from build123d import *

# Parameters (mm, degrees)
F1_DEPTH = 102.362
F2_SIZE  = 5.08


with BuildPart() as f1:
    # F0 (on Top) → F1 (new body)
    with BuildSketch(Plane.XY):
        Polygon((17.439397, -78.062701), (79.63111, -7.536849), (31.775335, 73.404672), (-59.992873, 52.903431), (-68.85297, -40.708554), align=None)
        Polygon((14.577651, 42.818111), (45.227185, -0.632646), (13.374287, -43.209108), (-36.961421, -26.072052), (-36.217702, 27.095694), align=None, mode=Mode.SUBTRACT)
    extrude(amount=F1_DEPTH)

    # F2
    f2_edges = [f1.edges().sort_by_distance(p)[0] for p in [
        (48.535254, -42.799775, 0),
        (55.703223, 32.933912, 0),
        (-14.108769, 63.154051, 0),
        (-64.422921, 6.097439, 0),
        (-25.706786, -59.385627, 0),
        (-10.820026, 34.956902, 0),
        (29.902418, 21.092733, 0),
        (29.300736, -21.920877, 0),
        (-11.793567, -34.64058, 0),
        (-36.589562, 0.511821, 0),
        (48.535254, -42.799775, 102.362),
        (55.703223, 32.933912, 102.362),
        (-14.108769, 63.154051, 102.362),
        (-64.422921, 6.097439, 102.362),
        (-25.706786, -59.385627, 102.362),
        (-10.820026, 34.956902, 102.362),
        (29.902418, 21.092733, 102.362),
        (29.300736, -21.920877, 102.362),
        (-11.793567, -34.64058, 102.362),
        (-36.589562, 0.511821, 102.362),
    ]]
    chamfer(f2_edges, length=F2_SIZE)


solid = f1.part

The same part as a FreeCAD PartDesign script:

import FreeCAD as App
import Part
import Sketcher

V = App.Vector
Q = App.Units.Quantity


def edges_at(feature, points):
    """Names of the edges that pass closest to the given points."""
    edges = feature.Shape.Edges
    near = lambda p: min(range(len(edges)), key=lambda i: edges[i].distToShape(Part.Vertex(*p))[0])
    return sorted({f"Edge{near(p) + 1}" for p in points})

doc = App.newDocument("Part")
body = doc.addObject("PartDesign::Body", "Body")

sketch1 = body.newObject("Sketcher::SketchObject", "Sketch")
sketch1.AttachmentSupport = (doc.getObject("XY_Plane"), [""])
sketch1.MapMode = "FlatFace"
sketch1.addGeometry([
    Part.LineSegment(V(17.439397, -78.062701, 0), V(79.63111, -7.536849, 0)),
    Part.LineSegment(V(79.63111, -7.536849, 0), V(31.775335, 73.404672, 0)),
    Part.LineSegment(V(31.775335, 73.404672, 0), V(-59.992873, 52.903431, 0)),
    Part.LineSegment(V(-59.992873, 52.903431, 0), V(-68.85297, -40.708554, 0)),
    Part.LineSegment(V(-68.85297, -40.708554, 0), V(17.439397, -78.062701, 0)),
    Part.LineSegment(V(-36.217702, 27.095694, 0), V(14.577651, 42.818111, 0)),
    Part.LineSegment(V(14.577651, 42.818111, 0), V(45.227185, -0.632646, 0)),
    Part.LineSegment(V(45.227185, -0.632646, 0), V(13.374287, -43.209108, 0)),
    Part.LineSegment(V(13.374287, -43.209108, 0), V(-36.961421, -26.072052, 0)),
    Part.LineSegment(V(-36.961421, -26.072052, 0), V(-36.217702, 27.095694, 0)),
], False)
sketch1.addConstraint([
    Sketcher.Constraint("Coincident", 0, 2, 1, 1),
    Sketcher.Constraint("Coincident", 1, 2, 2, 1),
    Sketcher.Constraint("Coincident", 2, 2, 3, 1),
    Sketcher.Constraint("Coincident", 3, 2, 4, 1),
    Sketcher.Constraint("Coincident", 4, 2, 0, 1),
    Sketcher.Constraint("Coincident", 5, 2, 6, 1),
    Sketcher.Constraint("Coincident", 6, 2, 7, 1),
    Sketcher.Constraint("Coincident", 7, 2, 8, 1),
    Sketcher.Constraint("Coincident", 8, 2, 9, 1),
    Sketcher.Constraint("Coincident", 9, 2, 5, 1),
    Sketcher.Constraint("DistanceY", 4, 2, -1, 1, Q("78.062701 mm")),
    Sketcher.Constraint("Distance", 0, Q("94.030341 mm")),
    Sketcher.Constraint("Distance", 1, Q("94.030341 mm")),
    Sketcher.Constraint("Distance", 2, Q("94.03034 mm")),
    Sketcher.Constraint("Distance", 3, Q("94.030341 mm")),
    Sketcher.Constraint("Distance", 4, Q("94.03034 mm")),
    Sketcher.Constraint("DistanceX", -1, 1, 0, 2, Q("79.63111 mm")),
    Sketcher.Constraint("DistanceY", 0, 2, -1, 1, Q("7.536849 mm")),
    Sketcher.Constraint("DistanceY", -1, 1, 2, 2, Q("52.903431 mm")),
    Sketcher.Constraint("DistanceX", 3, 2, -1, 1, Q("68.85297 mm")),
    Sketcher.Constraint("DistanceX", -1, 1, 5, 2, Q("14.577651 mm")),
    Sketcher.Constraint("DistanceY", -1, 1, 5, 2, Q("42.818111 mm")),
    Sketcher.Constraint("DistanceX", 8, 2, -1, 1, Q("36.961421 mm")),
    Sketcher.Constraint("DistanceY", 8, 2, -1, 1, Q("26.072052 mm")),
    Sketcher.Constraint("DistanceX", 1, 2, 6, 2, Q("13.45185 mm")),
    Sketcher.Constraint("DistanceY", 6, 2, 1, 2, Q("74.037318 mm")),
    Sketcher.Constraint("DistanceX", 7, 2, 4, 2, Q("4.06511 mm")),
    Sketcher.Constraint("DistanceY", 7, 2, 0, 2, Q("35.672259 mm")),
    Sketcher.Constraint("DistanceX", 2, 2, 9, 2, Q("23.775171 mm")),
    Sketcher.Constraint("DistanceY", 3, 2, 9, 2, Q("67.804248 mm")),
])
pad1 = body.newObject("PartDesign::Pad", "Pad")
pad1.Profile = sketch1
pad1.Length = Q("4.03 in")
doc.recompute()

chamfer = body.newObject("PartDesign::Chamfer", "Chamfer")
chamfer.Base = (pad1, edges_at(pad1, [
    (48.535, -42.8, 0),
    (55.703, 32.934, 0),
    (-14.109, 63.154, 0),
    (-64.423, 6.097, 0),
    (-25.707, -59.386, 0),
    (-10.82, 34.957, 0),
    (29.902, 21.093, 0),
    (29.301, -21.921, 0),
    (-11.794, -34.641, 0),
    (-36.59, 0.512, 0),
    (48.535, -42.8, 102.362),
    (55.703, 32.934, 102.362),
    (-14.109, 63.154, 102.362),
    (-64.423, 6.097, 102.362),
    (-25.707, -59.386, 102.362),
    (-10.82, 34.957, 102.362),
    (29.902, 21.093, 102.362),
    (29.301, -21.921, 102.362),
    (-11.794, -34.641, 102.362),
    (-36.59, 0.512, 102.362),
]))
chamfer.Size = Q("0.2 in")

doc.recompute()
